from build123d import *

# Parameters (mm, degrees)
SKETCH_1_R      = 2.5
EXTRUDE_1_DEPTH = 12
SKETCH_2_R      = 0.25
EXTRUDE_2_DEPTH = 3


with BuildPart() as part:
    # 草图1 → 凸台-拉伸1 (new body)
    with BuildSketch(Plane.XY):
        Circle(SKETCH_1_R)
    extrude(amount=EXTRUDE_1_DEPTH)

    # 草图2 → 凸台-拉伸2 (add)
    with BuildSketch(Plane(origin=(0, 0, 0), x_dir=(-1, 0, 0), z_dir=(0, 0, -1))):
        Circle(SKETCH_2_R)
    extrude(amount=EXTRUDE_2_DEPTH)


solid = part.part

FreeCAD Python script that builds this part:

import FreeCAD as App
import Part
import Sketcher
from FreeCAD import Vector

doc = App.newDocument("Part")
body = doc.addObject("PartDesign::Body", "Body")

sketch1 = doc.addObject("Sketcher::SketchObject", "Sketch")
body.addObject(sketch1)
sketch1.AttachmentSupport = (doc.XY_Plane, [""])
sketch1.MapMode = "FlatFace"
sketch1.addGeometry(Part.Circle(Vector(0, 0, 0), Vector(0, 0, 1), 2.5), False)
sketch1.addConstraint([
    Sketcher.Constraint("Coincident", 0, 3, -1, 1),
    Sketcher.Constraint("Diameter", 0, 5.0),
])
pad1 = doc.addObject("PartDesign::Pad", "Pad")
body.addObject(pad1)
pad1.Profile = sketch1
pad1.Length = 12

sketch2 = doc.addObject("Sketcher::SketchObject", "Sketch001")
body.addObject(sketch2)
sketch2.AttachmentSupport = (doc.XY_Plane, [""])
sketch2.MapMode = "FlatFace"
sketch2.addGeometry(Part.Circle(Vector(0, 0, 0), Vector(0, 0, 1), 0.25), False)
sketch2.addConstraint([
    Sketcher.Constraint("Coincident", 0, 3, -1, 1),
    Sketcher.Constraint("Diameter", 0, 0.5),
])
pad2 = doc.addObject("PartDesign::Pad", "Pad001")
body.addObject(pad2)
pad2.Profile = sketch2
pad2.Length = 3
pad2.Reversed = True

doc.recompute()
